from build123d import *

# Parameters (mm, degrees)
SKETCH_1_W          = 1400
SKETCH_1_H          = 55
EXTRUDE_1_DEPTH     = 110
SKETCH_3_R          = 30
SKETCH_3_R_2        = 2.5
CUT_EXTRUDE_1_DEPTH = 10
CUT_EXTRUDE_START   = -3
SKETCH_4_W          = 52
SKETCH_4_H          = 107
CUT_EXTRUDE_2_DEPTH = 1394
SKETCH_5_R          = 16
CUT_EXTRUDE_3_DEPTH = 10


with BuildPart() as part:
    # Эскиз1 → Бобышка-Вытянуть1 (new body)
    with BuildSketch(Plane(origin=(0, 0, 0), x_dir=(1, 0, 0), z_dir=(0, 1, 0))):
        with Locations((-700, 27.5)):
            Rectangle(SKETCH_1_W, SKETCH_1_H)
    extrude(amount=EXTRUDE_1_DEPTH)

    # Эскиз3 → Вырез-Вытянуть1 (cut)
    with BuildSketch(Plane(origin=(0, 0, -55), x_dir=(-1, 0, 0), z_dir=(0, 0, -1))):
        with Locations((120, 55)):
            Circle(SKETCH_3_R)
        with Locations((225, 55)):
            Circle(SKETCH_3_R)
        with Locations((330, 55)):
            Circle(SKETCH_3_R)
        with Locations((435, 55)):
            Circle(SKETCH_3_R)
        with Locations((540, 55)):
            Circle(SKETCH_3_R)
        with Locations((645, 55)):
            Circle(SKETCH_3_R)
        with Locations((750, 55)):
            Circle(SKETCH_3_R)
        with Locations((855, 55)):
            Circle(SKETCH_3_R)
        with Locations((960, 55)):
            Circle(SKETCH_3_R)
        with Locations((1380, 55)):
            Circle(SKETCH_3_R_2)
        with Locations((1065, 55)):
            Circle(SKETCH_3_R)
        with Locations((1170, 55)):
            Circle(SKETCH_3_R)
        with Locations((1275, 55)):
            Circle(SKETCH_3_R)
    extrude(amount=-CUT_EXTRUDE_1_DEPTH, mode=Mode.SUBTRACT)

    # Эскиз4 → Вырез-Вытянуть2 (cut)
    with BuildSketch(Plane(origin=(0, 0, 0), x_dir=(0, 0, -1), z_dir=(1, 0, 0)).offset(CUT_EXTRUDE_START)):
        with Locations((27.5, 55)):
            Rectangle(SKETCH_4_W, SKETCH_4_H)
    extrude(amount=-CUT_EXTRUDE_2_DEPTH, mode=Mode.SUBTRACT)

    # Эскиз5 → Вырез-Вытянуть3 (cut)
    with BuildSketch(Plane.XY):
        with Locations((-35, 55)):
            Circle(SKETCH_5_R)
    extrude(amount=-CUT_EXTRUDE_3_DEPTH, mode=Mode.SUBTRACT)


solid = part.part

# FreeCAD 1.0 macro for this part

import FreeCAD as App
import Part
import Sketcher
from FreeCAD import Vector


def add_polygon(sketch, points):
    """Adds a closed chain of lines whose ends are joined by coincident constraints."""
    first, n = sketch.GeometryCount, len(points)
    for a, b in zip(points, points[1:] + points[:1]):
        sketch.addGeometry(Part.LineSegment(App.Vector(*a, 0), App.Vector(*b, 0)), False)
    for i in range(n):
        sketch.addConstraint(Sketcher.Constraint("Coincident", first + i, 2, first + (i + 1) % n, 1))

doc = App.newDocument("Part")
params = doc.addObject("Spreadsheet::Sheet", "Params")
for row, (alias, value) in enumerate([
    ("sketch1_width", "1400 mm"),
    ("sketch1_height", "55 mm"),
    ("pad1_length", "110 mm"),
    ("sketch2_diameter", "60 mm"),
    ("sketch2_diameter2", "5 mm"),
    ("pocket1_length", "10 mm"),
    ("sketch3_width", "107 mm"),
    ("sketch3_height", "52 mm"),
    ("pocket2_length", "1394 mm"),
    ("sketch4_diameter", "32 mm"),
    ("pocket3_length", "10 mm"),
], start=1):
    params.set(f"A{row}", alias)
    params.set(f"B{row}", "=" + value)
    params.setAlias(f"B{row}", alias)

body = doc.addObject("PartDesign::Body", "Body")

# Sketch on XZ plane
sketch1 = doc.addObject("Sketcher::SketchObject", "Sketch")
body.addObject(sketch1)
sketch1.AttachmentSupport = (doc.XZ_Plane, [""])
sketch1.MapMode = "FlatFace"
add_polygon(sketch1, [(-1400, -55), (-1400, 0), (0, 0), (0, -55)])  # lines 0-3
sketch1.addConstraint(Sketcher.Constraint("Vertical", 0))
sketch1.addConstraint(Sketcher.Constraint("Horizontal", 1))
sketch1.addConstraint(Sketcher.Constraint("Vertical", 2))
sketch1.addConstraint(Sketcher.Constraint("Horizontal", 3))
sketch1.addConstraint(Sketcher.Constraint("Coincident", 1, 2, -1, 1))
sketch1.addConstraint(Sketcher.Constraint("DistanceX", 1, 1, 1, 2, 1400.0))
sketch1.addConstraint(Sketcher.Constraint("DistanceY", 0, 1, 0, 2, 55.0))
sketch1.setExpression("Constraints[9]", "Params.sketch1_width")
sketch1.setExpression("Constraints[10]", "Params.sketch1_height")
pad1 = doc.addObject("PartDesign::Pad", "Pad")
body.addObject(pad1)
pad1.Profile = sketch1
pad1.setExpression("Length", "Params.pad1_length")
pad1.Reversed = True

# Sketch on XY plane
sketch2 = doc.addObject("Sketcher::SketchObject", "Sketch001")
body.addObject(sketch2)
sketch2.AttachmentSupport = (doc.XY_Plane, [""])
sketch2.MapMode = "FlatFace"
sketch2.AttachmentOffset = App.Placement(Vector(0, 0, -55), App.Rotation())
sketch2.addGeometry(Part.Circle(Vector(-120, 55, 0), Vector(0, 0, 1), 30), False)
sketch2.addGeometry(Part.Circle(Vector(-225, 55, 0), Vector(0, 0, 1), 30), False)
sketch2.addGeometry(Part.Circle(Vector(-330, 55, 0), Vector(0, 0, 1), 30), False)
sketch2.addGeometry(Part.Circle(Vector(-435, 55, 0), Vector(0, 0, 1), 30), False)
sketch2.addGeometry(Part.Circle(Vector(-540, 55, 0), Vector(0, 0, 1), 30), False)
sketch2.addGeometry(Part.Circle(Vector(-645, 55, 0), Vector(0, 0, 1), 30), False)
sketch2.addGeometry(Part.Circle(Vector(-750, 55, 0), Vector(0, 0, 1), 30), False)
sketch2.addGeometry(Part.Circle(Vector(-855, 55, 0), Vector(0, 0, 1), 30), False)
sketch2.addGeometry(Part.Circle(Vector(-960, 55, 0), Vector(0, 0, 1), 30), False)
sketch2.addGeometry(Part.Circle(Vector(-1380, 55, 0), Vector(0, 0, 1), 2.5), False)
sketch2.addGeometry(Part.Circle(Vector(-1065, 55, 0), Vector(0, 0, 1), 30), False)
sketch2.addGeometry(Part.Circle(Vector(-1170, 55, 0), Vector(0, 0, 1), 30), False)
sketch2.addGeometry(Part.Circle(Vector(-1275, 55, 0), Vector(0, 0, 1), 30), False)
sketch2.addConstraint(Sketcher.Constraint("Equal", 0, 1))
sketch2.addConstraint(Sketcher.Constraint("Equal", 1, 2))
sketch2.addConstraint(Sketcher.Constraint("Equal", 2, 3))
sketch2.addConstraint(Sketcher.Constraint("Equal", 3, 4))
sketch2.addConstraint(Sketcher.Constraint("Equal", 4, 5))
sketch2.addConstraint(Sketcher.Constraint("Equal", 5, 6))
sketch2.addConstraint(Sketcher.Constraint("Equal", 6, 7))
sketch2.addConstraint(Sketcher.Constraint("Equal", 7, 8))
sketch2.addConstraint(Sketcher.Constraint("Equal", 8, 10))
sketch2.addConstraint(Sketcher.Constraint("Equal", 10, 11))
sketch2.addConstraint(Sketcher.Constraint("Equal", 11, 12))
sketch2.addConstraint(Sketcher.Constraint("Horizontal", 0, 3, 1, 3))
sketch2.addConstraint(Sketcher.Constraint("Horizontal", 1, 3, 2, 3))
sketch2.addConstraint(Sketcher.Constraint("Horizontal", 2, 3, 3, 3))
sketch2.addConstraint(Sketcher.Constraint("Horizontal", 3, 3, 4, 3))
sketch2.addConstraint(Sketcher.Constraint("Horizontal", 4, 3, 5, 3))
sketch2.addConstraint(Sketcher.Constraint("Horizontal", 5, 3, 6, 3))
sketch2.addConstraint(Sketcher.Constraint("Horizontal", 6, 3, 7, 3))
sketch2.addConstraint(Sketcher.Constraint("Horizontal", 7, 3, 8, 3))
sketch2.addConstraint(Sketcher.Constraint("Horizontal", 8, 3, 9, 3))
sketch2.addConstraint(Sketcher.Constraint("Horizontal", 9, 3, 10, 3))
sketch2.addConstraint(Sketcher.Constraint("Horizontal", 10, 3, 11, 3))
sketch2.addConstraint(Sketcher.Constraint("Horizontal", 11, 3, 12, 3))
sketch2.addConstraint(Sketcher.Constraint("Diameter", 0, 60.0))
sketch2.addConstraint(Sketcher.Constraint("Diameter", 9, 5.0))
sketch2.addConstraint(Sketcher.Constraint("DistanceX", 0, 3, -1, 1, 120.0))
sketch2.addConstraint(Sketcher.Constraint("DistanceY", -1, 1, 0, 3, 55.0))
sketch2.addConstraint(Sketcher.Constraint("DistanceX", 1, 3, -1, 1, 225.0))
sketch2.addConstraint(Sketcher.Constraint("DistanceX", 2, 3, -1, 1, 330.0))
sketch2.addConstraint(Sketcher.Constraint("DistanceX", 3, 3, -1, 1, 435.0))
sketch2.addConstraint(Sketcher.Constraint("DistanceX", 4, 3, -1, 1, 540.0))
sketch2.addConstraint(Sketcher.Constraint("DistanceX", 5, 3, -1, 1, 645.0))
sketch2.addConstraint(Sketcher.Constraint("DistanceX", 6, 3, -1, 1, 750.0))
sketch2.addConstraint(Sketcher.Constraint("DistanceX", 7, 3, -1, 1, 855.0))
sketch2.addConstraint(Sketcher.Constraint("DistanceX", 8, 3, -1, 1, 960.0))
sketch2.addConstraint(Sketcher.Constraint("DistanceX", 9, 3, -1, 1, 1380.0))
sketch2.addConstraint(Sketcher.Constraint("DistanceX", 10, 3, -1, 1, 1065.0))
sketch2.addConstraint(Sketcher.Constraint("DistanceX", 11, 3, -1, 1, 1170.0))
sketch2.addConstraint(Sketcher.Constraint("DistanceX", 12, 3, -1, 1, 1275.0))
sketch2.setExpression("Constraints[23]", "Params.sketch2_diameter")
sketch2.setExpression("Constraints[24]", "Params.sketch2_diameter2")
pocket1 = doc.addObject("PartDesign::Pocket", "Pocket")
body.addObject(pocket1)
pocket1.Profile = sketch2
pocket1.setExpression("Length", "Params.pocket1_length")
pocket1.Reversed = True

# Sketch on YZ plane
sketch3 = doc.addObject("Sketcher::SketchObject", "Sketch002")
body.addObject(sketch3)
sketch3.AttachmentSupport = (doc.YZ_Plane, [""])
sketch3.MapMode = "FlatFace"
sketch3.AttachmentOffset = App.Placement(Vector(0, 0, -3), App.Rotation())
add_polygon(sketch3, [(108, -2), (2, -2), (2, -54), (108, -54)])  # lines 0-3
sketch3.addConstraint(Sketcher.Constraint("Horizontal", 0))
sketch3.addConstraint(Sketcher.Constraint("Vertical", 1))
sketch3.addConstraint(Sketcher.Constraint("Horizontal", 2))
sketch3.addConstraint(Sketcher.Constraint("Vertical", 3))
sketch3.addConstraint(Sketcher.Constraint("DistanceX", 0, 2, 0, 1, 107.0))
sketch3.addConstraint(Sketcher.Constraint("DistanceY", 1, 2, 1, 1, 52.0))
sketch3.addConstraint(Sketcher.Constraint("DistanceX", -1, 1, 0, 2, 1.5))
sketch3.addConstraint(Sketcher.Constraint("DistanceY", 0, 2, -1, 1, 1.5))
sketch3.setExpression("Constraints[8]", "Params.sketch3_width")
sketch3.setExpression("Constraints[9]", "Params.sketch3_height")
pocket2 = doc.addObject("PartDesign::Pocket", "Pocket001")
body.addObject(pocket2)
pocket2.Profile = sketch3
pocket2.setExpression("Length", "Params.pocket2_length")

# Sketch on XY plane
sketch4 = doc.addObject("Sketcher::SketchObject", "Sketch003")
body.addObject(sketch4)
sketch4.AttachmentSupport = (doc.XY_Plane, [""])
sketch4.MapMode = "FlatFace"
sketch4.addGeometry(Part.Circle(Vector(-35, 55, 0), Vector(0, 0, 1), 16), False)
sketch4.addConstraint(Sketcher.Constraint("Diameter", 0, 32.0))
sketch4.addConstraint(Sketcher.Constraint("DistanceX", 0, 3, -1, 1, 35.0))
sketch4.addConstraint(Sketcher.Constraint("DistanceY", -1, 1, 0, 3, 55.0))
sketch4.setExpression("Constraints[0]", "Params.sketch4_diameter")
pocket3 = doc.addObject("PartDesign::Pocket", "Pocket002")
body.addObject(pocket3)
pocket3.Profile = sketch4
pocket3.setExpression("Length", "Params.pocket3_length")

doc.recompute()
